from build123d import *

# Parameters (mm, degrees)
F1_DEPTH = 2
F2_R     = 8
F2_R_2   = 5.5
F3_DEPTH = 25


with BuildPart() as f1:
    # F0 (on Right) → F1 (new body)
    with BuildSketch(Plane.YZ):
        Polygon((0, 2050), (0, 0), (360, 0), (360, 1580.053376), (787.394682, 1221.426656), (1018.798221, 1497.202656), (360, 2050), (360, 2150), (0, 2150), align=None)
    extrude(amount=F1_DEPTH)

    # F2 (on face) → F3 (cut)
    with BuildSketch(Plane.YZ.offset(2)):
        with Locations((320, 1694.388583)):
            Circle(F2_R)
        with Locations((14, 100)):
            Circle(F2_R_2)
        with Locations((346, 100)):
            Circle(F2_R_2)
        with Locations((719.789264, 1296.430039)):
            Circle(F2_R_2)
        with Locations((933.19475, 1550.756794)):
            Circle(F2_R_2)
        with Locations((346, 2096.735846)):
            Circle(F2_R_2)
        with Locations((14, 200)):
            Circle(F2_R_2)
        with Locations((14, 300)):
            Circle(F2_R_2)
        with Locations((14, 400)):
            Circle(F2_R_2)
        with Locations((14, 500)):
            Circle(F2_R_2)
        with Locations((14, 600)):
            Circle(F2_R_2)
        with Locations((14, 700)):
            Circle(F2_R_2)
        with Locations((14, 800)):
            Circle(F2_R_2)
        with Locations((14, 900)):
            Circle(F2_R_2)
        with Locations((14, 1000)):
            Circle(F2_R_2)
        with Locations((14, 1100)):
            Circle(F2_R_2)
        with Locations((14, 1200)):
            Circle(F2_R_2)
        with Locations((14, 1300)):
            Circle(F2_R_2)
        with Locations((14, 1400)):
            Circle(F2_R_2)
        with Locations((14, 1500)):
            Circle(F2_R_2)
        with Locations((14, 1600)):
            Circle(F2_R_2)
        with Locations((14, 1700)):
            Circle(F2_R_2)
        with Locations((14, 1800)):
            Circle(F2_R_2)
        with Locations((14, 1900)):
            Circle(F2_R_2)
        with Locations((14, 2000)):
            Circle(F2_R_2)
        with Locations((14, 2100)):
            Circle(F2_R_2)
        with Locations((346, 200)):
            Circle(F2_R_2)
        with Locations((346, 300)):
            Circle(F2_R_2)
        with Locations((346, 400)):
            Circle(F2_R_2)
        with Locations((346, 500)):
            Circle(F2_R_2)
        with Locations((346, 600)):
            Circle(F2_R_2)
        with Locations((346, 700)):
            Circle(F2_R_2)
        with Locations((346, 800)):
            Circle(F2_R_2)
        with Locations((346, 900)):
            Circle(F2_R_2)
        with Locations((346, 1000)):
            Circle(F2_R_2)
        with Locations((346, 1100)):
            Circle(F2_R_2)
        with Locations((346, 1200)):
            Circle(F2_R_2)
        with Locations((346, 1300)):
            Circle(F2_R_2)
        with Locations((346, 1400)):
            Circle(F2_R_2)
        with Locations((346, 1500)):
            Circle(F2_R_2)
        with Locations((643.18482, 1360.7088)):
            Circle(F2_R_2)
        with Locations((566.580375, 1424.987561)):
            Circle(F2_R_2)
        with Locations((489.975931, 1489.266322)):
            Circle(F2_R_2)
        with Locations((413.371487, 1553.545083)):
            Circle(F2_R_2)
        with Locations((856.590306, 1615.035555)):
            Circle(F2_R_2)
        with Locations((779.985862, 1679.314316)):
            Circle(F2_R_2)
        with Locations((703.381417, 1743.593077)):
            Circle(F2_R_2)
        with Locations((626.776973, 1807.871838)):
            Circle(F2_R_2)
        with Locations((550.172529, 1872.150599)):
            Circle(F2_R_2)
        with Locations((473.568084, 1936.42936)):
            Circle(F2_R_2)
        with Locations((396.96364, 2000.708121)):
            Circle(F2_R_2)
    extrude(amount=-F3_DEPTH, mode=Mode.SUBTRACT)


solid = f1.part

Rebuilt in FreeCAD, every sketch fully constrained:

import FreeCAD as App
import Part
import Sketcher
from FreeCAD import Vector
Q = App.Units.Quantity

doc = App.newDocument("Part")
params = doc.addObject("Spreadsheet::Sheet", "Params")
for row, (alias, value) in enumerate([
    ("sketch1_width", "360 mm"),
    ("sketch1_height", "100 mm"),
    ("sketch1_height2", "2150 mm"),
    ("sketch1_length", "360 mm"),
    ("sketch1_length2", "860 mm"),
    ("pad1_length", "2 mm"),
    ("sketch2_diameter", "16 mm"),
    ("sketch2_diameter2", "11 mm"),
    ("pocket1_length", "25 mm"),
], start=1):
    params.set(f"A{row}", alias)
    params.set(f"B{row}", "=" + value)
    params.setAlias(f"B{row}", alias)

body = doc.addObject("PartDesign::Body", "Body")

sketch1 = body.newObject("Sketcher::SketchObject", "Sketch")
sketch1.AttachmentSupport = (doc.getObject("YZ_Plane"), [""])
sketch1.MapMode = "FlatFace"
sketch1.addGeometry([
    Part.LineSegment(Vector(0, 0, 0), Vector(360, 0, 0)),
    Part.LineSegment(Vector(360, 0, 0), Vector(360, 1580, 0)),
    Part.LineSegment(Vector(360, 1580, 0), Vector(787, 1221, 0)),
    Part.LineSegment(Vector(787, 1221, 0), Vector(1019, 1497, 0)),
    Part.LineSegment(Vector(1019, 1497, 0), Vector(360, 2050, 0)),
    Part.LineSegment(Vector(360, 2050, 0), Vector(360, 2150, 0)),
    Part.LineSegment(Vector(360, 2150, 0), Vector(0, 2150, 0)),
    Part.LineSegment(Vector(0, 2150, 0), Vector(0, 0, 0)),
], False)
sketch1.addConstraint([
    Sketcher.Constraint("Coincident", 0, 2, 1, 1),
    Sketcher.Constraint("Coincident", 1, 2, 2, 1),
    Sketcher.Constraint("Coincident", 2, 2, 3, 1),
    Sketcher.Constraint("Coincident", 3, 2, 4, 1),
    Sketcher.Constraint("Coincident", 4, 2, 5, 1),
    Sketcher.Constraint("Coincident", 5, 2, 6, 1),
    Sketcher.Constraint("Coincident", 6, 2, 7, 1),
    Sketcher.Constraint("Coincident", 7, 2, 0, 1),
    Sketcher.Constraint("Horizontal", 0),
    Sketcher.Constraint("Vertical", 1),
    Sketcher.Constraint("Vertical", 5),
    Sketcher.Constraint("Horizontal", 6),
    Sketcher.Constraint("Vertical", 7),
    Sketcher.Constraint("Coincident", 7, 2, -1, 1),
    Sketcher.Constraint("Perpendicular", 2, 3),
    Sketcher.Constraint("Perpendicular", 3, 4),
    Sketcher.Constraint("Vertical", 1, 2, 4, 2),
    Sketcher.Constraint("DistanceX", 0, 1, 0, 2, Q("360 mm")),
    Sketcher.Constraint("DistanceY", 5, 1, 5, 2, Q("100 mm")),
    Sketcher.Constraint("DistanceY", 7, 2, 7, 1, Q("2150 mm")),
    Sketcher.Constraint("Angle", 2, Q("-40 deg")),
    Sketcher.Constraint("Distance", 3, Q("360 mm")),
    Sketcher.Constraint("Distance", 4, Q("860 mm")),
])
sketch1.setExpression("Constraints[17]", "Params.sketch1_width")
sketch1.setExpression("Constraints[18]", "Params.sketch1_height")
sketch1.setExpression("Constraints[19]", "Params.sketch1_height2")
sketch1.setExpression("Constraints[21]", "Params.sketch1_length")
sketch1.setExpression("Constraints[22]", "Params.sketch1_length2")
pad1 = body.newObject("PartDesign::Pad", "Pad")
pad1.Profile = sketch1
pad1.setExpression("Length", "Params.pad1_length")

sketch2 = body.newObject("Sketcher::SketchObject", "Sketch001")
sketch2.AttachmentSupport = (doc.getObject("YZ_Plane"), [""])
sketch2.MapMode = "FlatFace"
sketch2.AttachmentOffset = App.Placement(Vector(0, 0, 2), App.Rotation())
sketch2.addGeometry([
    Part.Circle(Vector(320, 1694, 0), Vector(0, 0, 1), 8),
    Part.Circle(Vector(14, 100, 0), Vector(0, 0, 1), 6),
    Part.Circle(Vector(346, 100, 0), Vector(0, 0, 1), 6),
    Part.Circle(Vector(720, 1296, 0), Vector(0, 0, 1), 6),
    Part.Circle(Vector(933, 1551, 0), Vector(0, 0, 1), 6),
    Part.Circle(Vector(346, 2097, 0), Vector(0, 0, 1), 6),
    Part.Circle(Vector(14, 200, 0), Vector(0, 0, 1), 6),
    Part.Circle(Vector(14, 300, 0), Vector(0, 0, 1), 6),
    Part.Circle(Vector(14, 400, 0), Vector(0, 0, 1), 6),
    Part.Circle(Vector(14, 500, 0), Vector(0, 0, 1), 6),
    Part.Circle(Vector(14, 600, 0), Vector(0, 0, 1), 6),
    Part.Circle(Vector(14, 700, 0), Vector(0, 0, 1), 6),
    Part.Circle(Vector(14, 800, 0), Vector(0, 0, 1), 6),
    Part.Circle(Vector(14, 900, 0), Vector(0, 0, 1), 6),
    Part.Circle(Vector(14, 1000, 0), Vector(0, 0, 1), 6),
    Part.Circle(Vector(14, 1100, 0), Vector(0, 0, 1), 6),
    Part.Circle(Vector(14, 1200, 0), Vector(0, 0, 1), 6),
    Part.Circle(Vector(14, 1300, 0), Vector(0, 0, 1), 6),
    Part.Circle(Vector(14, 1400, 0), Vector(0, 0, 1), 6),
    Part.Circle(Vector(14, 1500, 0), Vector(0, 0, 1), 6),
    Part.Circle(Vector(14, 1600, 0), Vector(0, 0, 1), 6),
    Part.Circle(Vector(14, 1700, 0), Vector(0, 0, 1), 6),
    Part.Circle(Vector(14, 1800, 0), Vector(0, 0, 1), 6),
    Part.Circle(Vector(14, 1900, 0), Vector(0, 0, 1), 6),
    Part.Circle(Vector(14, 2000, 0), Vector(0, 0, 1), 6),
    Part.Circle(Vector(14, 2100, 0), Vector(0, 0, 1), 6),
    Part.Circle(Vector(346, 200, 0), Vector(0, 0, 1), 6),
    Part.Circle(Vector(346, 300, 0), Vector(0, 0, 1), 6),
    Part.Circle(Vector(346, 400, 0), Vector(0, 0, 1), 6),
    Part.Circle(Vector(346, 500, 0), Vector(0, 0, 1), 6),
    Part.Circle(Vector(346, 600, 0), Vector(0, 0, 1), 6),
    Part.Circle(Vector(346, 700, 0), Vector(0, 0, 1), 6),
    Part.Circle(Vector(346, 800, 0), Vector(0, 0, 1), 6),
    Part.Circle(Vector(346, 900, 0), Vector(0, 0, 1), 6),
    Part.Circle(Vector(346, 1000, 0), Vector(0, 0, 1), 6),
    Part.Circle(Vector(346, 1100, 0), Vector(0, 0, 1), 6),
    Part.Circle(Vector(346, 1200, 0), Vector(0, 0, 1), 6),
    Part.Circle(Vector(346, 1300, 0), Vector(0, 0, 1), 6),
    Part.Circle(Vector(346, 1400, 0), Vector(0, 0, 1), 6),
    Part.Circle(Vector(346, 1500, 0), Vector(0, 0, 1), 6),
    Part.Circle(Vector(643, 1361, 0), Vector(0, 0, 1), 6),
    Part.Circle(Vector(567, 1425, 0), Vector(0, 0, 1), 6),
    Part.Circle(Vector(490, 1489, 0), Vector(0, 0, 1), 6),
    Part.Circle(Vector(413, 1554, 0), Vector(0, 0, 1), 6),
    Part.Circle(Vector(857, 1615, 0), Vector(0, 0, 1), 6),
    Part.Circle(Vector(780, 1679, 0), Vector(0, 0, 1), 6),
    Part.Circle(Vector(703, 1744, 0), Vector(0, 0, 1), 6),
    Part.Circle(Vector(627, 1808, 0), Vector(0, 0, 1), 6),
    Part.Circle(Vector(550, 1872, 0), Vector(0, 0, 1), 6),
    Part.Circle(Vector(474, 1936, 0), Vector(0, 0, 1), 6),
    Part.Circle(Vector(397, 2001, 0), Vector(0, 0, 1), 6),
], False)
sketch2.addConstraint([
    Sketcher.Constraint("Equal", 1, 2),
    Sketcher.Constraint("Equal", 2, 3),
    Sketcher.Constraint("Equal", 3, 4),
    Sketcher.Constraint("Equal", 4, 5),
    Sketcher.Constraint("Equal", 5, 6),
    Sketcher.Constraint("Equal", 6, 7),
    Sketcher.Constraint("Equal", 7, 8),
    Sketcher.Constraint("Equal", 8, 9),
    Sketcher.Constraint("Equal", 9, 10),
    Sketcher.Constraint("Equal", 10, 11),
    Sketcher.Constraint("Equal", 11, 12),
    Sketcher.Constraint("Equal", 12, 13),
    Sketcher.Constraint("Equal", 13, 14),
    Sketcher.Constraint("Equal", 14, 15),
    Sketcher.Constraint("Equal", 15, 16),
    Sketcher.Constraint("Equal", 16, 17),
    Sketcher.Constraint("Equal", 17, 18),
    Sketcher.Constraint("Equal", 18, 19),
    Sketcher.Constraint("Equal", 19, 20),
    Sketcher.Constraint("Equal", 20, 21),
    Sketcher.Constraint("Equal", 21, 22),
    Sketcher.Constraint("Equal", 22, 23),
    Sketcher.Constraint("Equal", 23, 24),
    Sketcher.Constraint("Equal", 24, 25),
    Sketcher.Constraint("Equal", 25, 26),
    Sketcher.Constraint("Equal", 26, 27),
    Sketcher.Constraint("Equal", 27, 28),
    Sketcher.Constraint("Equal", 28, 29),
    Sketcher.Constraint("Equal", 29, 30),
    Sketcher.Constraint("Equal", 30, 31),
    Sketcher.Constraint("Equal", 31, 32),
    Sketcher.Constraint("Equal", 32, 33),
    Sketcher.Constraint("Equal", 33, 34),
    Sketcher.Constraint("Equal", 34, 35),
    Sketcher.Constraint("Equal", 35, 36),
    Sketcher.Constraint("Equal", 36, 37),
    Sketcher.Constraint("Equal", 37, 38),
    Sketcher.Constraint("Equal", 38, 39),
    Sketcher.Constraint("Equal", 39, 40),
    Sketcher.Constraint("Equal", 40, 41),
    Sketcher.Constraint("Equal", 41, 42),
    Sketcher.Constraint("Equal", 42, 43),
    Sketcher.Constraint("Equal", 43, 44),
    Sketcher.Constraint("Equal", 44, 45),
    Sketcher.Constraint("Equal", 45, 46),
    Sketcher.Constraint("Equal", 46, 47),
    Sketcher.Constraint("Equal", 47, 48),
    Sketcher.Constraint("Equal", 48, 49),
    Sketcher.Constraint("Equal", 49, 50),
    Sketcher.Constraint("Horizontal", 1, 3, 2, 3),
    Sketcher.Constraint("Horizontal", 6, 3, 26, 3),
    Sketcher.Constraint("Horizontal", 7, 3, 27, 3),
    Sketcher.Constraint("Horizontal", 8, 3, 28, 3),
    Sketcher.Constraint("Horizontal", 9, 3, 29, 3),
    Sketcher.Constraint("Horizontal", 10, 3, 30, 3),
    Sketcher.Constraint("Horizontal", 11, 3, 31, 3),
    Sketcher.Constraint("Horizontal", 12, 3, 32, 3),
    Sketcher.Constraint("Horizontal", 13, 3, 33, 3),
    Sketcher.Constraint("Horizontal", 14, 3, 34, 3),
    Sketcher.Constraint("Horizontal", 15, 3, 35, 3),
    Sketcher.Constraint("Horizontal", 16, 3, 36, 3),
    Sketcher.Constraint("Horizontal", 17, 3, 37, 3),
    Sketcher.Constraint("Horizontal", 18, 3, 38, 3),
    Sketcher.Constraint("Horizontal", 19, 3, 39, 3),
    Sketcher.Constraint("Vertical", 2, 3, 5, 3),
    Sketcher.Constraint("Vertical", 1, 3, 6, 3),
    Sketcher.Constraint("Vertical", 6, 3, 7, 3),
    Sketcher.Constraint("Vertical", 7, 3, 8, 3),
    Sketcher.Constraint("Vertical", 8, 3, 9, 3),
    Sketcher.Constraint("Vertical", 9, 3, 10, 3),
    Sketcher.Constraint("Vertical", 10, 3, 11, 3),
    Sketcher.Constraint("Vertical", 11, 3, 12, 3),
    Sketcher.Constraint("Vertical", 12, 3, 13, 3),
    Sketcher.Constraint("Vertical", 13, 3, 14, 3),
    Sketcher.Constraint("Vertical", 14, 3, 15, 3),
    Sketcher.Constraint("Vertical", 15, 3, 16, 3),
    Sketcher.Constraint("Vertical", 16, 3, 17, 3),
    Sketcher.Constraint("Vertical", 17, 3, 18, 3),
    Sketcher.Constraint("Vertical", 18, 3, 19, 3),
    Sketcher.Constraint("Vertical", 19, 3, 20, 3),
    Sketcher.Constraint("Vertical", 20, 3, 21, 3),
    Sketcher.Constraint("Vertical", 21, 3, 22, 3),
    Sketcher.Constraint("Vertical", 22, 3, 23, 3),
    Sketcher.Constraint("Vertical", 23, 3, 24, 3),
    Sketcher.Constraint("Vertical", 24, 3, 25, 3),
    Sketcher.Constraint("Vertical", 5, 3, 26, 3),
    Sketcher.Constraint("Vertical", 26, 3, 27, 3),
    Sketcher.Constraint("Vertical", 27, 3, 28, 3),
    Sketcher.Constraint("Vertical", 28, 3, 29, 3),
    Sketcher.Constraint("Vertical", 29, 3, 30, 3),
    Sketcher.Constraint("Vertical", 30, 3, 31, 3),
    Sketcher.Constraint("Vertical", 31, 3, 32, 3),
    Sketcher.Constraint("Vertical", 32, 3, 33, 3),
    Sketcher.Constraint("Vertical", 33, 3, 34, 3),
    Sketcher.Constraint("Vertical", 34, 3, 35, 3),
    Sketcher.Constraint("Vertical", 35, 3, 36, 3),
    Sketcher.Constraint("Vertical", 36, 3, 37, 3),
    Sketcher.Constraint("Vertical", 37, 3, 38, 3),
    Sketcher.Constraint("Vertical", 38, 3, 39, 3),
    Sketcher.Constraint("Diameter", 0, Q("16 mm")),
    Sketcher.Constraint("Diameter", 1, Q("11 mm")),
    Sketcher.Constraint("DistanceX", -1, 1, 0, 3, Q("320 mm")),
    Sketcher.Constraint("DistanceX", -1, 1, 1, 3, Q("14 mm")),
    Sketcher.Constraint("DistanceY", -1, 1, 1, 3, Q("100 mm")),
    Sketcher.Constraint("DistanceX", -1, 1, 2, 3, Q("346 mm")),
    Sketcher.Constraint("DistanceY", -1, 1, 6, 3, Q("200 mm")),
    Sketcher.Constraint("DistanceY", -1, 1, 7, 3, Q("300 mm")),
    Sketcher.Constraint("DistanceY", -1, 1, 8, 3, Q("400 mm")),
    Sketcher.Constraint("DistanceY", -1, 1, 9, 3, Q("500 mm")),
    Sketcher.Constraint("DistanceY", -1, 1, 10, 3, Q("600 mm")),
    Sketcher.Constraint("DistanceY", -1, 1, 11, 3, Q("700 mm")),
    Sketcher.Constraint("DistanceY", -1, 1, 12, 3, Q("800 mm")),
    Sketcher.Constraint("DistanceY", -1, 1, 13, 3, Q("900 mm")),
    Sketcher.Constraint("DistanceY", -1, 1, 14, 3, Q("1000 mm")),
    Sketcher.Constraint("DistanceY", -1, 1, 15, 3, Q("1100 mm")),
    Sketcher.Constraint("DistanceY", -1, 1, 16, 3, Q("1200 mm")),
    Sketcher.Constraint("DistanceY", -1, 1, 17, 3, Q("1300 mm")),
    Sketcher.Constraint("DistanceY", -1, 1, 18, 3, Q("1400 mm")),
    Sketcher.Constraint("DistanceY", -1, 1, 19, 3, Q("1500 mm")),
    Sketcher.Constraint("DistanceY", -1, 1, 20, 3, Q("1600 mm")),
    Sketcher.Constraint("DistanceY", -1, 1, 21, 3, Q("1700 mm")),
    Sketcher.Constraint("DistanceY", -1, 1, 22, 3, Q("1800 mm")),
    Sketcher.Constraint("DistanceY", -1, 1, 23, 3, Q("1900 mm")),
    Sketcher.Constraint("DistanceY", -1, 1, 24, 3, Q("2000 mm")),
    Sketcher.Constraint("DistanceY", -1, 1, 25, 3, Q("2100 mm")),
    Sketcher.Constraint("DistanceY", -1, 1, 40, 3, Q("1360.7088 mm")),
    Sketcher.Constraint("DistanceY", -1, 1, 48, 3, Q("1872.150599 mm")),
    Sketcher.Constraint("DistanceY", 43, 3, 0, 3, Q("140.8435 mm")),
    Sketcher.Constraint("DistanceY", -1, 1, 3, 3, Q("1296.430039 mm")),
    Sketcher.Constraint("DistanceX", -1, 1, 4, 3, Q("933.19475 mm")),
    Sketcher.Constraint("DistanceX", -1, 1, 40, 3, Q("643.18482 mm")),
    Sketcher.Constraint("DistanceY", -1, 1, 41, 3, Q("1424.987561 mm")),
    Sketcher.Constraint("DistanceX", -1, 1, 42, 3, Q("489.975931 mm")),
    Sketcher.Constraint("DistanceY", -1, 1, 42, 3, Q("1489.266322 mm")),
    Sketcher.Constraint("DistanceX", -1, 1, 45, 3, Q("779.985862 mm")),
    Sketcher.Constraint("DistanceY", -1, 1, 47, 3, Q("1807.871838 mm")),
    Sketcher.Constraint("DistanceX", -1, 1, 48, 3, Q("550.172529 mm")),
    Sketcher.Constraint("DistanceY", -1, 1, 49, 3, Q("1936.42936 mm")),
    Sketcher.Constraint("DistanceX", -1, 1, 50, 3, Q("396.96364 mm")),
    Sketcher.Constraint("DistanceY", -1, 1, 50, 3, Q("2000.708121 mm")),
    Sketcher.Constraint("DistanceY", 4, 3, 0, 3, Q("143.631789 mm")),
    Sketcher.Constraint("DistanceX", 41, 3, 3, 3, Q("153.208889 mm")),
    Sketcher.Constraint("DistanceY", 42, 3, 43, 3, Q("64.278761 mm")),
    Sketcher.Constraint("DistanceX", 43, 3, 41, 3, Q("153.208888 mm")),
    Sketcher.Constraint("DistanceY", 4, 3, 44, 3, Q("64.278761 mm")),
    Sketcher.Constraint("DistanceX", 41, 3, 44, 3, Q("290.009931 mm")),
    Sketcher.Constraint("DistanceY", 44, 3, 45, 3, Q("64.278761 mm")),
    Sketcher.Constraint("DistanceY", 45, 3, 46, 3, Q("64.278761 mm")),
    Sketcher.Constraint("DistanceX", 46, 3, 44, 3, Q("153.208889 mm")),
    Sketcher.Constraint("DistanceX", 47, 3, 45, 3, Q("153.208889 mm")),
    Sketcher.Constraint("DistanceX", 48, 3, 46, 3, Q("153.208888 mm")),
    Sketcher.Constraint("DistanceX", 49, 3, 47, 3, Q("153.208889 mm")),
    Sketcher.Constraint("DistanceY", -1, 1, 5, 3, Q("2096.735846 mm")),
])
sketch2.setExpression("Constraints[99]", "Params.sketch2_diameter")
sketch2.setExpression("Constraints[100]", "Params.sketch2_diameter2")
pocket1 = body.newObject("PartDesign::Pocket", "Pocket")
pocket1.Profile = sketch2
pocket1.setExpression("Length", "Params.pocket1_length")

doc.recompute()
